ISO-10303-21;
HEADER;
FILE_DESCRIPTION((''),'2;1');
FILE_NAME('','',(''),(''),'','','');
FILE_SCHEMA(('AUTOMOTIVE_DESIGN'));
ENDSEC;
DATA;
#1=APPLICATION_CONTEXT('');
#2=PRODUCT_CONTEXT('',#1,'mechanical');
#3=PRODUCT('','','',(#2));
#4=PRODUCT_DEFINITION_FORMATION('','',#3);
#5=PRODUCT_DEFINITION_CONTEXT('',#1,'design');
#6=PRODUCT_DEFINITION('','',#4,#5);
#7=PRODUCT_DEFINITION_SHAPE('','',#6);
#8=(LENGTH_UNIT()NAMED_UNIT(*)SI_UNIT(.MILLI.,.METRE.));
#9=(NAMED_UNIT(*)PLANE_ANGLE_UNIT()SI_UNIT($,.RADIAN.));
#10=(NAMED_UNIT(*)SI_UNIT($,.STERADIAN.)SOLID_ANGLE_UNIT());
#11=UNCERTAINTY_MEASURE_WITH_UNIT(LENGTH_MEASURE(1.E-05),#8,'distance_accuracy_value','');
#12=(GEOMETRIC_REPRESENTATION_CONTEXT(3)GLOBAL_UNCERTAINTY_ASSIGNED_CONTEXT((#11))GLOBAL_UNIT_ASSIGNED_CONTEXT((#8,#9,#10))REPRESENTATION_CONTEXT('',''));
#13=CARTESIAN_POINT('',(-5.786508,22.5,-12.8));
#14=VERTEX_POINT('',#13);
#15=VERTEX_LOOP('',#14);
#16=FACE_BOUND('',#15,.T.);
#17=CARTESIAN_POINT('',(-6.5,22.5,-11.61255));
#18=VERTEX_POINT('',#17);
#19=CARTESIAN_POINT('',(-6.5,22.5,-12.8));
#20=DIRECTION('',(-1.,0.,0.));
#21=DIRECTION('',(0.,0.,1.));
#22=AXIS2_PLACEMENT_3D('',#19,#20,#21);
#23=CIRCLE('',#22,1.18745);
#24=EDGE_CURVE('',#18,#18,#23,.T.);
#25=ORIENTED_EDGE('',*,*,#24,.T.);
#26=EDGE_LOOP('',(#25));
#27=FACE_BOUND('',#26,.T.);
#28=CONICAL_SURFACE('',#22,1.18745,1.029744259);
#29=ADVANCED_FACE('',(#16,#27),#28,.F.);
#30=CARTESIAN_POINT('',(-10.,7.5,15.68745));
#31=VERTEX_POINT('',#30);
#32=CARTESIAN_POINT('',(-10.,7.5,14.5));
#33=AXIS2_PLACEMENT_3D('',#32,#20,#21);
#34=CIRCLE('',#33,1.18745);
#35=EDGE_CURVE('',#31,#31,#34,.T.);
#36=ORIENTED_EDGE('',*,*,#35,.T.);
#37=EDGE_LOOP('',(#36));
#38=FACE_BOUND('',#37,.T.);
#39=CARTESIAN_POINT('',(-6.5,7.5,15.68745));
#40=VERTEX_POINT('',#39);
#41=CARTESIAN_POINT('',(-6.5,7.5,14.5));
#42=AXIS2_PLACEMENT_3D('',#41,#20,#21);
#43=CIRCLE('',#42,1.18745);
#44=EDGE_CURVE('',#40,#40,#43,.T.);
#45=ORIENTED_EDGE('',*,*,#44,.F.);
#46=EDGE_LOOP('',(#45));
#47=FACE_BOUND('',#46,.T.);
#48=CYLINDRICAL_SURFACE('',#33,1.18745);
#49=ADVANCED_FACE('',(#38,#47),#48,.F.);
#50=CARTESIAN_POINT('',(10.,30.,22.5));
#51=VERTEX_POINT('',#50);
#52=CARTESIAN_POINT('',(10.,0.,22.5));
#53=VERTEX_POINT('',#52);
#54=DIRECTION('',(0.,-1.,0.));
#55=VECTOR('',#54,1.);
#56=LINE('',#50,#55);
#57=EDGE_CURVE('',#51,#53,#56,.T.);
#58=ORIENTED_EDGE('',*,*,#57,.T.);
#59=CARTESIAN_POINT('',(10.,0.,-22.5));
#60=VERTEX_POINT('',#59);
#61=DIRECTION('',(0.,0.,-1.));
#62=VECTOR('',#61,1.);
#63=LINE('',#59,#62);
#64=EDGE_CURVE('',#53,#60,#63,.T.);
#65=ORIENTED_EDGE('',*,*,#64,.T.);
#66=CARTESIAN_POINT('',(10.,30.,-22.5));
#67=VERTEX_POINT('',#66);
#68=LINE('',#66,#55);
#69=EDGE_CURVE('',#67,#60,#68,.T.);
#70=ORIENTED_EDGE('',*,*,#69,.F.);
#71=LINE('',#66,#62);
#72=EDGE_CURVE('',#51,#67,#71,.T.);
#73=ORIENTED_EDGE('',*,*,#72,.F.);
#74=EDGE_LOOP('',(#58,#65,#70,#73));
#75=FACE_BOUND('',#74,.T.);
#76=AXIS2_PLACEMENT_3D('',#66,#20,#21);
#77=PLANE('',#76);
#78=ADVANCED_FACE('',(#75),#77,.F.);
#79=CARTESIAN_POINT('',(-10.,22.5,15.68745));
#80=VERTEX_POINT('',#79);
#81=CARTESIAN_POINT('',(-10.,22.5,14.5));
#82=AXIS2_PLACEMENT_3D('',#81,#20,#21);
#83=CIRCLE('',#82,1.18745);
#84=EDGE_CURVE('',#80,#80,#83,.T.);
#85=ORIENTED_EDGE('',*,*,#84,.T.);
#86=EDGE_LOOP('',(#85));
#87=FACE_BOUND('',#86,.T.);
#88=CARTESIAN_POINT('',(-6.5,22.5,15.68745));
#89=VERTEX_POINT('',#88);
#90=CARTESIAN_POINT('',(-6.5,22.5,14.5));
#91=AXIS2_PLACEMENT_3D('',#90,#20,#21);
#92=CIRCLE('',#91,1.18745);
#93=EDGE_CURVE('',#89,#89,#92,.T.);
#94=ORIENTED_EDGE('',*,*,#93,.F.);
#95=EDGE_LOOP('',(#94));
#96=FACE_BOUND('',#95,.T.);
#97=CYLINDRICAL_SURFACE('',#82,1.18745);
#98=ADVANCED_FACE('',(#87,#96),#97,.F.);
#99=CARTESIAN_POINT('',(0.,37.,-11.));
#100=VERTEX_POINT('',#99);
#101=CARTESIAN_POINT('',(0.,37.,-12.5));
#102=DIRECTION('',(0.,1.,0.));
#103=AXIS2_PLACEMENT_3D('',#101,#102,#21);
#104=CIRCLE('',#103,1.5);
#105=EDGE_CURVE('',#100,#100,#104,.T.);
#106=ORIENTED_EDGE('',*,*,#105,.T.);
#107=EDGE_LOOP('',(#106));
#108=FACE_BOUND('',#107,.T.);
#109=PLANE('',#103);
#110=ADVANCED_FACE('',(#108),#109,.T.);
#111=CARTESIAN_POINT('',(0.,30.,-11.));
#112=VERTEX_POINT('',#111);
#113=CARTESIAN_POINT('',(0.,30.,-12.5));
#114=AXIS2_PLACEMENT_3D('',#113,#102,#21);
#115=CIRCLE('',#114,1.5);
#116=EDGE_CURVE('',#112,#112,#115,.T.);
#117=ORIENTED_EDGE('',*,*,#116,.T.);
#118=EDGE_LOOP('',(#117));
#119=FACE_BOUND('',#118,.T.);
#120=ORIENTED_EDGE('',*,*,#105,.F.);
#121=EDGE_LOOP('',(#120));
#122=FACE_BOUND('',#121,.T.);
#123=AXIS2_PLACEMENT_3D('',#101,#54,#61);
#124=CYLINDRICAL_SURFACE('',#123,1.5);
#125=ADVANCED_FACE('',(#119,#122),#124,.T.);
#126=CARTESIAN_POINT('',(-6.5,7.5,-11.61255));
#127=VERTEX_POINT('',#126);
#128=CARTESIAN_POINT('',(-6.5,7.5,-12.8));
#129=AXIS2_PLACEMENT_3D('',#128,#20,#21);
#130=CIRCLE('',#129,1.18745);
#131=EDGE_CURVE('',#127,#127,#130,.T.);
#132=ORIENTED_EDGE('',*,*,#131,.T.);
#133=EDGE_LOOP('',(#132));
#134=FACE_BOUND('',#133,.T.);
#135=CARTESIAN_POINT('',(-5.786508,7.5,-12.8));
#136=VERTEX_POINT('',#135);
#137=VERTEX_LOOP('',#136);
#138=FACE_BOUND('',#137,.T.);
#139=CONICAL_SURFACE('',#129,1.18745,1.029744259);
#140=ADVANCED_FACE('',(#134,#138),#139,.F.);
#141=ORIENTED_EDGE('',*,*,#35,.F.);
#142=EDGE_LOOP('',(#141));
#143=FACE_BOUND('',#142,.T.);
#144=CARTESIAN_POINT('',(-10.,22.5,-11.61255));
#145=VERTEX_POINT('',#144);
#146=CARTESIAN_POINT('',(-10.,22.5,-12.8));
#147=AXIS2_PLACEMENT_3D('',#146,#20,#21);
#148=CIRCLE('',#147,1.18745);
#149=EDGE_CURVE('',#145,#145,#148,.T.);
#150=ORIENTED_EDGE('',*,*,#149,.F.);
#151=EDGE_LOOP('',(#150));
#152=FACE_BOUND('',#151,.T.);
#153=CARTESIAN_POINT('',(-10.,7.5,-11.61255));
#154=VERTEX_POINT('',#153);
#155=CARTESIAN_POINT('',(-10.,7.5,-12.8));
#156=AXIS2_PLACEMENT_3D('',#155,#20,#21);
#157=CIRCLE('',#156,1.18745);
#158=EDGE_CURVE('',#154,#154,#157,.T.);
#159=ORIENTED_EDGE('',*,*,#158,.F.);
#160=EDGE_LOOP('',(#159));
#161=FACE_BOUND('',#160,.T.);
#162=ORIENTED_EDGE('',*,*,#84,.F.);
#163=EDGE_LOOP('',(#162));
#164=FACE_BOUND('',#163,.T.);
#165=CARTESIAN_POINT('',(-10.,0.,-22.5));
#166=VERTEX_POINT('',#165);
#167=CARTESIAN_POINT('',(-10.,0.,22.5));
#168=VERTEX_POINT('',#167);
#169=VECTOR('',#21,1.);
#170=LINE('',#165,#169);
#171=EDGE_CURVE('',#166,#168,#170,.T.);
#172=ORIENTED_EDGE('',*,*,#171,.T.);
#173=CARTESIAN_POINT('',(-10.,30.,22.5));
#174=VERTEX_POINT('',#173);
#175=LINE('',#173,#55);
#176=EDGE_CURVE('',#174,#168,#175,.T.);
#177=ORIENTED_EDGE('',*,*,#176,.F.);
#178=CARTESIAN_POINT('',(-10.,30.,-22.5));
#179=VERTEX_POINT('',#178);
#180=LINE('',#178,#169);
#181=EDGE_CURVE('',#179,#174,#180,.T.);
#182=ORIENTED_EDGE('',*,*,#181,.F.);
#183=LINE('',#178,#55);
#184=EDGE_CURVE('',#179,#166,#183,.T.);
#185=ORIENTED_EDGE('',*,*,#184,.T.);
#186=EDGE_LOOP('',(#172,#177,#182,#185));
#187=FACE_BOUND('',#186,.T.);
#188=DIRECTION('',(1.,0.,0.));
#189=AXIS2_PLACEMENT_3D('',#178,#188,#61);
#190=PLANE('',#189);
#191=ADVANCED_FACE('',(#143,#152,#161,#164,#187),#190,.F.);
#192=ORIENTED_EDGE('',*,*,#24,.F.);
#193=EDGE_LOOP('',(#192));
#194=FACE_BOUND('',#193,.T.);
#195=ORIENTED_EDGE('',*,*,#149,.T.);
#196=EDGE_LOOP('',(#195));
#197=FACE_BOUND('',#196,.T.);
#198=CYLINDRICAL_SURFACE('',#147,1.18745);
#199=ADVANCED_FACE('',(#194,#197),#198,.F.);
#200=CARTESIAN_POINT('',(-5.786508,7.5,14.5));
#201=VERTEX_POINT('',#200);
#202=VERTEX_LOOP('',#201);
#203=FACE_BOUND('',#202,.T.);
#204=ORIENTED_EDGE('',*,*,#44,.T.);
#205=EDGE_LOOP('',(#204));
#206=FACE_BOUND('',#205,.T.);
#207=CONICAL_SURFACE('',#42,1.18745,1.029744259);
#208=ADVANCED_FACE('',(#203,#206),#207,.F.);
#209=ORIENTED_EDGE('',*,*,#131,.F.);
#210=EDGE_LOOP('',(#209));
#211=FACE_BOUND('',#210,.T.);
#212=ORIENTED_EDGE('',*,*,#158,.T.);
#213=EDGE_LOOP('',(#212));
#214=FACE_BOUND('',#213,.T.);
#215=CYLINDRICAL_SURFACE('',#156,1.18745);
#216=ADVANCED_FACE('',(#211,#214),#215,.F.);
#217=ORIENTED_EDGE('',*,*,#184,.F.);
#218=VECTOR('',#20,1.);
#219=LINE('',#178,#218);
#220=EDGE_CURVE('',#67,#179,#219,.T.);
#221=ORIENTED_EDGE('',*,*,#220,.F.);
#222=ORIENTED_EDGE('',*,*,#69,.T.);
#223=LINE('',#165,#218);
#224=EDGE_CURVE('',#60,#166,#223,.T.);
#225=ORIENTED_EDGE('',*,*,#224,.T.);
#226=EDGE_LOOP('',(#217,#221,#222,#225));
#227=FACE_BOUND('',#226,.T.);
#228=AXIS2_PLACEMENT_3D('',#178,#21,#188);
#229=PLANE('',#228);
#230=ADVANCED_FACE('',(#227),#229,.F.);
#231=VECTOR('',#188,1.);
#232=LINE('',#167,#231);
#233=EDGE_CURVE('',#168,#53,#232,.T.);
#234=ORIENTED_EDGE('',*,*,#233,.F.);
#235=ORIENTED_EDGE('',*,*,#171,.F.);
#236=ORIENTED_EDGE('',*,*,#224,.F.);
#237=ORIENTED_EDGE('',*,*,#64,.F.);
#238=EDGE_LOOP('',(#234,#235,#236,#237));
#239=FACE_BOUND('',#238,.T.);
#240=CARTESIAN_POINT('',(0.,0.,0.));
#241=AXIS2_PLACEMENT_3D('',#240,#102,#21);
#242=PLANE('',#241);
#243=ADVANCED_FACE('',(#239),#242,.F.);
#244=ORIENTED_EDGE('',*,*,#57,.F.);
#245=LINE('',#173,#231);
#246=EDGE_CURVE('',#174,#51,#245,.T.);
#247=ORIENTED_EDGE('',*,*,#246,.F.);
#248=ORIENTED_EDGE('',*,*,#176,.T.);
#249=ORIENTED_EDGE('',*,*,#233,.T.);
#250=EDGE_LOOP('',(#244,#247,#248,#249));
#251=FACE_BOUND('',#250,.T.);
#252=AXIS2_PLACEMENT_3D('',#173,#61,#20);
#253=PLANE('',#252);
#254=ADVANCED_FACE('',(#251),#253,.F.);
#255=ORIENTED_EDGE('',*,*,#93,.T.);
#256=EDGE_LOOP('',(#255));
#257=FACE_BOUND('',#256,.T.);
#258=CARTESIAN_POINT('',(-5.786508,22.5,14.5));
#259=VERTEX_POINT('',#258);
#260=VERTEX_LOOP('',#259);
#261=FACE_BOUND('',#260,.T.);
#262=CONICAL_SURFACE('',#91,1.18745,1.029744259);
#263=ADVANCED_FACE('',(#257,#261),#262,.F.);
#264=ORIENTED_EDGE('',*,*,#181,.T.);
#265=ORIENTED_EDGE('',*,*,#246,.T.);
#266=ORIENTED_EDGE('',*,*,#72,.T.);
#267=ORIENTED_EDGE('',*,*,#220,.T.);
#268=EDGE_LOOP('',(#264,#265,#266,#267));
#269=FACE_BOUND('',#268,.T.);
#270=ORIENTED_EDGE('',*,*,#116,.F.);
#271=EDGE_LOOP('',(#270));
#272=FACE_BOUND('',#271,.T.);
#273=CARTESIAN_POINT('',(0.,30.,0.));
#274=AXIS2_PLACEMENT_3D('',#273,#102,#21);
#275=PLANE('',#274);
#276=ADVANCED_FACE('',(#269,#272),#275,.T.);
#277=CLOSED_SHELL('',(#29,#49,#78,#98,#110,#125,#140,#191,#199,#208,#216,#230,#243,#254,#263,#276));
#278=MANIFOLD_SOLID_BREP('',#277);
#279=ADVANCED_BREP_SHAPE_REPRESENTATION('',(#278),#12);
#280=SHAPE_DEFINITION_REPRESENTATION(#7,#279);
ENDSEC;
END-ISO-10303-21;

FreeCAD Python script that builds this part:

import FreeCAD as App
import Part
import Sketcher
Q = App.Units.Quantity


def add_polygon(sketch, points):
    """Adds a closed chain of lines whose ends are joined by coincident constraints."""
    first, n = sketch.GeometryCount, len(points)
    for a, b in zip(points, points[1:] + points[:1]):
        sketch.addGeometry(Part.LineSegment(App.Vector(*a, 0), App.Vector(*b, 0)), False)
    for i in range(n):
        sketch.addConstraint(Sketcher.Constraint("Coincident", first + i, 2, first + (i + 1) % n, 1))

doc = App.newDocument("Part")
body = doc.addObject("PartDesign::Body", "Body")

# Sketch on XZ plane
sketch1 = body.newObject("Sketcher::SketchObject", "Sketch")
sketch1.AttachmentSupport = (doc.getObject("XZ_Plane"), [""])
sketch1.MapMode = "FlatFace"
add_polygon(sketch1, [(-10, -22.5), (-10, 22.5), (10, 22.5), (10, -22.5)])  # lines 0-3
sketch1.addConstraint(Sketcher.Constraint("Vertical", 0))
sketch1.addConstraint(Sketcher.Constraint("Horizontal", 1))
sketch1.addConstraint(Sketcher.Constraint("Vertical", 2))
sketch1.addConstraint(Sketcher.Constraint("Horizontal", 3))
sketch1.addConstraint(Sketcher.Constraint("Symmetric", 0, 2, 2, 2, -1, 1))
sketch1.addConstraint(Sketcher.Constraint("DistanceX", 1, 1, 1, 2, Q("20 mm")))
sketch1.addConstraint(Sketcher.Constraint("DistanceY", 0, 1, 0, 2, Q("45 mm")))
pad1 = body.newObject("PartDesign::Pad", "Pad")
pad1.Profile = sketch1
pad1.Length = 30
pad1.Reversed = True

# Sketch on XZ plane
sketch2 = body.newObject("Sketcher::SketchObject", "Sketch001")
sketch2.AttachmentSupport = (doc.getObject("XZ_Plane"), [""])
sketch2.MapMode = "FlatFace"
sketch2.AttachmentOffset = App.Placement(App.Vector(0, 0, -30), App.Rotation())
sketch2.addGeometry(Part.Circle(App.Vector(0, -12.5, 0), App.Vector(0, 0, 1), 1.5), False)
sketch2.addConstraint(Sketcher.Constraint("PointOnObject", 0, 3, -2))
sketch2.addConstraint(Sketcher.Constraint("Diameter", 0, Q("3 mm")))
sketch2.addConstraint(Sketcher.Constraint("DistanceY", 0, 3, -1, 1, Q("12.5 mm")))
pad2 = body.newObject("PartDesign::Pad", "Pad001")
pad2.Profile = sketch2
pad2.Length = 7
pad2.Reversed = True

# Sketch on YZ plane
sketch3 = body.newObject("Sketcher::SketchObject", "Sketch002")
sketch3.AttachmentSupport = (doc.getObject("YZ_Plane"), [""])
sketch3.MapMode = "FlatFace"
sketch3.AttachmentOffset = App.Placement(App.Vector(0, 0, -10), App.Rotation())
sketch3.addGeometry(Part.Circle(App.Vector(7.5, -12.8, 0), App.Vector(0, 0, 1), 1.18745), False)
sketch3.addGeometry(Part.Circle(App.Vector(22.5, -12.8, 0), App.Vector(0, 0, 1), 1.18745), False)
sketch3.addGeometry(Part.Circle(App.Vector(22.5, 14.5, 0), App.Vector(0, 0, 1), 1.18745), False)
sketch3.addGeometry(Part.Circle(App.Vector(7.5, 14.5, 0), App.Vector(0, 0, 1), 1.18745), False)
sketch3.addConstraint(Sketcher.Constraint("Equal", 0, 1))
sketch3.addConstraint(Sketcher.Constraint("Equal", 1, 2))
sketch3.addConstraint(Sketcher.Constraint("Equal", 2, 3))
sketch3.addConstraint(Sketcher.Constraint("Horizontal", 0, 3, 1, 3))
sketch3.addConstraint(Sketcher.Constraint("Horizontal", 2, 3, 3, 3))
sketch3.addConstraint(Sketcher.Constraint("Vertical", 1, 3, 2, 3))
sketch3.addConstraint(Sketcher.Constraint("Vertical", 0, 3, 3, 3))
sketch3.addConstraint(Sketcher.Constraint("DistanceX", 0, 3, 1, 3, Q("15 mm")))
sketch3.addConstraint(Sketcher.Constraint("Diameter", 0, Q("2.3749 mm")))
sketch3.addConstraint(Sketcher.Constraint("DistanceX", -1, 1, 0, 3, Q("7.5 mm")))
sketch3.addConstraint(Sketcher.Constraint("DistanceY", 0, 3, -1, 1, Q("12.8 mm")))
sketch3.addConstraint(Sketcher.Constraint("DistanceY", -1, 1, 2, 3, Q("14.5 mm")))
doc.recompute()
hole = body.newObject("PartDesign::Hole", "Hole")
hole.Profile = sketch3
hole.ThreadType = "None"
hole.Diameter = 2.3749
hole.DepthType = "Dimension"
hole.Depth = 3.5
hole.DrillPoint = "Angled"
hole.DrillPointAngle = 118
hole.Reversed = True

doc.recompute()
